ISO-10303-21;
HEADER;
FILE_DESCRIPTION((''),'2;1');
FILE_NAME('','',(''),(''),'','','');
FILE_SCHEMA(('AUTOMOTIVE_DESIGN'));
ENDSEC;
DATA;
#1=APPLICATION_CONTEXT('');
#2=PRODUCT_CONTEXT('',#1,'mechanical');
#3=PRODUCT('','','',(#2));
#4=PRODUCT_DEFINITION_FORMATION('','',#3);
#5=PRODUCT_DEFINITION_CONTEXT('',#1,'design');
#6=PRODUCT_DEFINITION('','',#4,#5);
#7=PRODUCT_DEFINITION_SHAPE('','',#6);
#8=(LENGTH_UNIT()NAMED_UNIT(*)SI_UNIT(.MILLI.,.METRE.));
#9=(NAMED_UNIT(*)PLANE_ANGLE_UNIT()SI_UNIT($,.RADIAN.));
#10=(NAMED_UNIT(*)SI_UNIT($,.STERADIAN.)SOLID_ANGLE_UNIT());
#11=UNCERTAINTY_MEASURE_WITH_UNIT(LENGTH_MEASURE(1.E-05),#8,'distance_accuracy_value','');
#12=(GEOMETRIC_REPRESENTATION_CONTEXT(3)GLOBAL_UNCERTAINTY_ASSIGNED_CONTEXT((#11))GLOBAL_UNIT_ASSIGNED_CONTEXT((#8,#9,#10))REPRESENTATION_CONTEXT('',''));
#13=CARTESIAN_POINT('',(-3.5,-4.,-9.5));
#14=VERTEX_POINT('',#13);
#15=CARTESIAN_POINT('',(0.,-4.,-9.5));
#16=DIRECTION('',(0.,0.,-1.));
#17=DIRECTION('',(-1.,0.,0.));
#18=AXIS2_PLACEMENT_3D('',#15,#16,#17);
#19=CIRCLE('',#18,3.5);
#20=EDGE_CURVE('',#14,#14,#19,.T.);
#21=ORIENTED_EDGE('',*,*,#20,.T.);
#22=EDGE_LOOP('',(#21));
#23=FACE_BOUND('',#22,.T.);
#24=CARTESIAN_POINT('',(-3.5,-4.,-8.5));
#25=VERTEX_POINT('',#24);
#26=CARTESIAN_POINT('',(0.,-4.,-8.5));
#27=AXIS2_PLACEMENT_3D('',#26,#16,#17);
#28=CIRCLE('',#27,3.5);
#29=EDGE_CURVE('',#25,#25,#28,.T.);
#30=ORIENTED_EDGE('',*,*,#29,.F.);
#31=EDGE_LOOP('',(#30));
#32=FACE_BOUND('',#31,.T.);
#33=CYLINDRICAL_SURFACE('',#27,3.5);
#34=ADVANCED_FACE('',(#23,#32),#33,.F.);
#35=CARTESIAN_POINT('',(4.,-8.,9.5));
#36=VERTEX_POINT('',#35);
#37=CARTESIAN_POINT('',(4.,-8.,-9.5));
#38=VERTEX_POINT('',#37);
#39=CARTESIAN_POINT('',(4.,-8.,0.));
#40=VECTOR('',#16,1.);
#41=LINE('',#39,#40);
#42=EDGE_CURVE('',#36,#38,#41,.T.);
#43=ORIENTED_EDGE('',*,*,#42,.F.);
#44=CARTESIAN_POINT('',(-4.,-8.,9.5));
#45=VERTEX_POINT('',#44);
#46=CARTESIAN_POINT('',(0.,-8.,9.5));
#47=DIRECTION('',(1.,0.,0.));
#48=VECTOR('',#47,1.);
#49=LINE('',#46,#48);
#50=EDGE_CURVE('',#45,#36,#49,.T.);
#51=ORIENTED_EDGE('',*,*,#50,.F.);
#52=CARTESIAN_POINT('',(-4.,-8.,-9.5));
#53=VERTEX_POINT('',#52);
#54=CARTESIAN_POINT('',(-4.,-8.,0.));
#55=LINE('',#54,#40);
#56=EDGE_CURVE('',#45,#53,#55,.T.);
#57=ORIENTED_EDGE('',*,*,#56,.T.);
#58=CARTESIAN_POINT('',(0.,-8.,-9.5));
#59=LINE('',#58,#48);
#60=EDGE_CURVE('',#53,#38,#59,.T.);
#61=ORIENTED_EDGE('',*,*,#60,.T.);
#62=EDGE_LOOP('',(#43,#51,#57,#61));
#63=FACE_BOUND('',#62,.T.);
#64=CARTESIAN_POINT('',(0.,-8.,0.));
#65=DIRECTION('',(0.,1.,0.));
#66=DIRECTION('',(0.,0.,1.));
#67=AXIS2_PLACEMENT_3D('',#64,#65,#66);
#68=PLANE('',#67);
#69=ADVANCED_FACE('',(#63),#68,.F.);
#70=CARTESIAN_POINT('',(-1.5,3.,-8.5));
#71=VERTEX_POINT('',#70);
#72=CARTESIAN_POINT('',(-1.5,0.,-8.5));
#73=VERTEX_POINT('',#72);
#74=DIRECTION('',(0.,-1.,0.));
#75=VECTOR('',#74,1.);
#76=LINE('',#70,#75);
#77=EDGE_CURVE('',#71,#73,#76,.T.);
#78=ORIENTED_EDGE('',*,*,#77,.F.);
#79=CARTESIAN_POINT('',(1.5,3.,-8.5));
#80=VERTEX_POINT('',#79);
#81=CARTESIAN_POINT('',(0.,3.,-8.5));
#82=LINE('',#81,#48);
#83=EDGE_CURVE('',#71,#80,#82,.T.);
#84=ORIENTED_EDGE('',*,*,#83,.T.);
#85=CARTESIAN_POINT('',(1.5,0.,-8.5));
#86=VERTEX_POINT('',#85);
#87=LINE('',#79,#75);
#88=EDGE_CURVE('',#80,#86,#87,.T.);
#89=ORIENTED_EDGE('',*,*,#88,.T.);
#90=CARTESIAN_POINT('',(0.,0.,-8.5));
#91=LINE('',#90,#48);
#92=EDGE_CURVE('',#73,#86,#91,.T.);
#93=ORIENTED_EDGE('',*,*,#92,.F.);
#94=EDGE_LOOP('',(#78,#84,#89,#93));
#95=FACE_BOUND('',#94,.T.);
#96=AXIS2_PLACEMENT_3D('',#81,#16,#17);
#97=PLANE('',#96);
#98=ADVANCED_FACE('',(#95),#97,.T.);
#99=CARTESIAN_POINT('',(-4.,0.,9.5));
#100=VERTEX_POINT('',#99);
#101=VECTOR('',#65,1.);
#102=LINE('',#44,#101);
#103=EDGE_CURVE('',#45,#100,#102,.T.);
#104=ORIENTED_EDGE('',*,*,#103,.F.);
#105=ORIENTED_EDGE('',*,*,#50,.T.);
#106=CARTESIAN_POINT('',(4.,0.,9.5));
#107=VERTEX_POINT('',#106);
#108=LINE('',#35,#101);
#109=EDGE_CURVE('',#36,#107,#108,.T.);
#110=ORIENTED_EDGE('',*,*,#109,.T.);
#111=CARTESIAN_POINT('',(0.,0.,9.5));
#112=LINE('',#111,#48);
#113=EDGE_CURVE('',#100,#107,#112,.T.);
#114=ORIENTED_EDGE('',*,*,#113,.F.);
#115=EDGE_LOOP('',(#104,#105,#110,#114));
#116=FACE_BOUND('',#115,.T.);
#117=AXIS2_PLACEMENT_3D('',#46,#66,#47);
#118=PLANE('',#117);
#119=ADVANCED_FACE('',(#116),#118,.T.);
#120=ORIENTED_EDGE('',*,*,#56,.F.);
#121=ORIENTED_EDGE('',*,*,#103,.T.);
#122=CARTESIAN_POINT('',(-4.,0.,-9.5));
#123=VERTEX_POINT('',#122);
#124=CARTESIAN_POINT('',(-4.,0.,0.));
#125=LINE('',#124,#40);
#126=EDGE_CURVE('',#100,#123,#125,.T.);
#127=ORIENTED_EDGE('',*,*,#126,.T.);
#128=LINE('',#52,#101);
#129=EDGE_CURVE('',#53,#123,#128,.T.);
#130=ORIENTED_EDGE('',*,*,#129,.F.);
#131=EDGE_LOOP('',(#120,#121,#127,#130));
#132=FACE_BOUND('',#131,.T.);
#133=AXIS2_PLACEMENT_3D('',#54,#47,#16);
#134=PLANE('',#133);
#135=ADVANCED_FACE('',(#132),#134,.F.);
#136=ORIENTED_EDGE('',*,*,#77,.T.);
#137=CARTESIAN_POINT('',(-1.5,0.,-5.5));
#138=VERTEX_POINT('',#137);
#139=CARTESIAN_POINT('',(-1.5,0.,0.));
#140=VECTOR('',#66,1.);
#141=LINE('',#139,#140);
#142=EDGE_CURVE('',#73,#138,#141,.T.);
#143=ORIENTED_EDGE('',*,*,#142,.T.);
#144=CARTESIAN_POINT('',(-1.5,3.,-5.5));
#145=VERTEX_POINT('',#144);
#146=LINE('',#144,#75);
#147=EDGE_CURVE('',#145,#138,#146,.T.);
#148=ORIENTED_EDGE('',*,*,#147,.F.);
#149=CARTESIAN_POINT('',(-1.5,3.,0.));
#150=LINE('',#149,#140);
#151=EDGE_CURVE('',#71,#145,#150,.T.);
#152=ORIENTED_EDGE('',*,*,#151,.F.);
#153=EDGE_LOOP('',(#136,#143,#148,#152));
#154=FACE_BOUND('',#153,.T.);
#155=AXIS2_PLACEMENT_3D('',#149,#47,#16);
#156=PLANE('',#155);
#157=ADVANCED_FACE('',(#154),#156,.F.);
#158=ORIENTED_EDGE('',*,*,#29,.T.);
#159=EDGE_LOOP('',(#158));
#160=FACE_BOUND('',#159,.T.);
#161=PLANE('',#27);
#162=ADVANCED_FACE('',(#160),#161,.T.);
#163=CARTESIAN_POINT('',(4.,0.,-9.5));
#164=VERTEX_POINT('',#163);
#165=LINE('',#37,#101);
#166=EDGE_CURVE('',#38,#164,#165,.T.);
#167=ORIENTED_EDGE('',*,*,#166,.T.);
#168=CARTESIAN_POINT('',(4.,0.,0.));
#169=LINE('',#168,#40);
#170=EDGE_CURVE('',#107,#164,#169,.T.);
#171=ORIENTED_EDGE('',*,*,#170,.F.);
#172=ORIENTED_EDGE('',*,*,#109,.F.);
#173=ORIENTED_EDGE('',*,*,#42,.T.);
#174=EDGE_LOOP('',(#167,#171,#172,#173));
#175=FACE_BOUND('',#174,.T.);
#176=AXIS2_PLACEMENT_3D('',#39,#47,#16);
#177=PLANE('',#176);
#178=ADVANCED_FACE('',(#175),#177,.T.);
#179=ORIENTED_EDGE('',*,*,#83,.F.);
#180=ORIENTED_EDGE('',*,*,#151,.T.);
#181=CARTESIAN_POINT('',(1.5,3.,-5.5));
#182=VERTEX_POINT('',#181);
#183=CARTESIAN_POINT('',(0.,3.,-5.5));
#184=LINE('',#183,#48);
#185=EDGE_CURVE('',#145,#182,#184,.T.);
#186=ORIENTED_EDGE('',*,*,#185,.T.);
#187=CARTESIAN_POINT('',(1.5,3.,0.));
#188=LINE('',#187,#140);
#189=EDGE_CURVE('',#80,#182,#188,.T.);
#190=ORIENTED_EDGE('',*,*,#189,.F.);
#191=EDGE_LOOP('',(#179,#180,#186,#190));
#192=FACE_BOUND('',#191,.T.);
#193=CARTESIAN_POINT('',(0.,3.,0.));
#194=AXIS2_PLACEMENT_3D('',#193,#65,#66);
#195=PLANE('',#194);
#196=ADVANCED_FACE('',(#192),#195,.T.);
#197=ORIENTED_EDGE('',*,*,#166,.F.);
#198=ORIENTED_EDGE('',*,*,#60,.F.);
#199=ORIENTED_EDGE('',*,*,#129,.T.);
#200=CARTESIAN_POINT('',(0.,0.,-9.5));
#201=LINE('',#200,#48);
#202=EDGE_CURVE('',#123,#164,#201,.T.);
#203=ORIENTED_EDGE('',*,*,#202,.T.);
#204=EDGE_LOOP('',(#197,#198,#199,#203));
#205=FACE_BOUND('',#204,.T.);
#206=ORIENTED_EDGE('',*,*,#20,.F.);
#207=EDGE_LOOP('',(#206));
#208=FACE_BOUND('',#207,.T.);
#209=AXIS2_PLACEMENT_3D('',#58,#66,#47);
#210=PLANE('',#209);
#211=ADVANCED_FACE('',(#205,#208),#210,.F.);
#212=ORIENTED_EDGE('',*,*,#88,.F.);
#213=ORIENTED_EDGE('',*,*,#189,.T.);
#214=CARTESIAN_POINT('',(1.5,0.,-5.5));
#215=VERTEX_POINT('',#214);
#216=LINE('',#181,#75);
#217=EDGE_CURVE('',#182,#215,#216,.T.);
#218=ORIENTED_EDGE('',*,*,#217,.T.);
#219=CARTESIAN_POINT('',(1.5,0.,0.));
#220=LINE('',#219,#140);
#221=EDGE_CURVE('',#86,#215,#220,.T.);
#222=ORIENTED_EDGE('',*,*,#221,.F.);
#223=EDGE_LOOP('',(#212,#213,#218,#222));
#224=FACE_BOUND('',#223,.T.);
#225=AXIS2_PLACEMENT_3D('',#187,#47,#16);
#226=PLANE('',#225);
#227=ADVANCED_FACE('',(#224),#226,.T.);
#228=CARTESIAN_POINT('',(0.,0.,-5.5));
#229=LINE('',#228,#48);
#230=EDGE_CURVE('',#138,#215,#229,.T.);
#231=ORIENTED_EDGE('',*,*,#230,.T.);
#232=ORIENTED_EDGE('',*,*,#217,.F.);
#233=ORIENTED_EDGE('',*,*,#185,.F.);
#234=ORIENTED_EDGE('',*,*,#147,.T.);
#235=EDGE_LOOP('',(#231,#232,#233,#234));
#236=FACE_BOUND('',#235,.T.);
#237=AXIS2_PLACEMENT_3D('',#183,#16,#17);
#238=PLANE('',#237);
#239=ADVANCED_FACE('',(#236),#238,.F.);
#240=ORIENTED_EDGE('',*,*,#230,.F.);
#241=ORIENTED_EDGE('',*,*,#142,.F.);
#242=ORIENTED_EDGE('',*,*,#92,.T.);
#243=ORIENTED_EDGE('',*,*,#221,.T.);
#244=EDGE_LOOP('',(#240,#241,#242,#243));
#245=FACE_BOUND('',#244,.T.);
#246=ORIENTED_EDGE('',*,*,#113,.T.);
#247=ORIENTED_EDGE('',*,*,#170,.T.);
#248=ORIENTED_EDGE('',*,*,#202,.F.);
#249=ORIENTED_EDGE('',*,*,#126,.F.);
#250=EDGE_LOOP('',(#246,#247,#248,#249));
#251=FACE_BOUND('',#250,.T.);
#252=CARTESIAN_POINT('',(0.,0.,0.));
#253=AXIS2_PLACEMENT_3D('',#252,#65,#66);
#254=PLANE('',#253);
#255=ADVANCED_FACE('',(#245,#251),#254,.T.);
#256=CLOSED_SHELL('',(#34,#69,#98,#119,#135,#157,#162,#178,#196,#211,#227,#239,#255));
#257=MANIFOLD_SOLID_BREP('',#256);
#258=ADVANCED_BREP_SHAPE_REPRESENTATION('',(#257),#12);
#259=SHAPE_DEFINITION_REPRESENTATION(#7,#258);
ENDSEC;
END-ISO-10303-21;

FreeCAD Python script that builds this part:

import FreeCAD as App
import Part
import Sketcher
Q = App.Units.Quantity


def add_polygon(sketch, points):
    """Adds a closed chain of lines whose ends are joined by coincident constraints."""
    first, n = sketch.GeometryCount, len(points)
    for a, b in zip(points, points[1:] + points[:1]):
        sketch.addGeometry(Part.LineSegment(App.Vector(*a, 0), App.Vector(*b, 0)), False)
    for i in range(n):
        sketch.addConstraint(Sketcher.Constraint("Coincident", first + i, 2, first + (i + 1) % n, 1))

doc = App.newDocument("Part")
body = doc.addObject("PartDesign::Body", "Body")

sketch1 = body.newObject("Sketcher::SketchObject", "Sketch")
sketch1.AttachmentSupport = (doc.getObject("XZ_Plane"), [""])
sketch1.MapMode = "FlatFace"
add_polygon(sketch1, [(-4, -10), (-4, 10), (4, 10), (4, -10)])
sketch1.addConstraint(Sketcher.Constraint("Vertical", 0))
sketch1.addConstraint(Sketcher.Constraint("Horizontal", 1))
sketch1.addConstraint(Sketcher.Constraint("Vertical", 2))
sketch1.addConstraint(Sketcher.Constraint("Horizontal", 3))
sketch1.addConstraint(Sketcher.Constraint("Symmetric", 0, 2, 2, 2, -1, 1))
sketch1.addConstraint(Sketcher.Constraint("DistanceX", 1, 1, 1, 2, Q("8 mm")))
sketch1.addConstraint(Sketcher.Constraint("DistanceY", 0, 1, 0, 2, Q("19 mm")))
pad1 = body.newObject("PartDesign::Pad", "Pad")
pad1.Profile = sketch1
pad1.Length = 8

sketch2 = body.newObject("Sketcher::SketchObject", "Sketch001")
sketch2.AttachmentSupport = (doc.getObject("XZ_Plane"), [""])
sketch2.MapMode = "FlatFace"
add_polygon(sketch2, [(-1.5, -8.5), (-1.5, -5.5), (1.5, -5.5), (1.5, -8.5)])
sketch2.addConstraint(Sketcher.Constraint("Vertical", 0))
sketch2.addConstraint(Sketcher.Constraint("Horizontal", 1))
sketch2.addConstraint(Sketcher.Constraint("Vertical", 2))
sketch2.addConstraint(Sketcher.Constraint("Horizontal", 3))
sketch2.addConstraint(Sketcher.Constraint("Equal", 3, 0))
sketch2.addConstraint(Sketcher.Constraint("DistanceX", 1, 1, 1, 2, Q("3 mm")))
sketch2.addConstraint(Sketcher.Constraint("DistanceX", 0, 2, -1, 1, Q("1.5 mm")))
sketch2.addConstraint(Sketcher.Constraint("DistanceY", 0, 2, -1, 1, Q("5.5 mm")))
pad2 = body.newObject("PartDesign::Pad", "Pad001")
pad2.Profile = sketch2
pad2.Length = 3
pad2.Reversed = True

sketch3 = body.newObject("Sketcher::SketchObject", "Sketch002")
sketch3.AttachmentSupport = (doc.getObject("XY_Plane"), [""])
sketch3.MapMode = "FlatFace"
sketch3.AttachmentOffset = App.Placement(App.Vector(0, 0, -9.5), App.Rotation())
sketch3.addGeometry(Part.Circle(App.Vector(0, -4, 0), App.Vector(0, 0, 1), 3.5), False)
sketch3.addConstraint(Sketcher.Constraint("PointOnObject", 0, 3, -2))
sketch3.addConstraint(Sketcher.Constraint("Diameter", 0, Q("7 mm")))
sketch3.addConstraint(Sketcher.Constraint("DistanceY", 0, 3, -1, 1, Q("4 mm")))
pocket1 = body.newObject("PartDesign::Pocket", "Pocket")
pocket1.Profile = sketch3
pocket1.Length = 1
pocket1.Reversed = True

doc.recompute()
